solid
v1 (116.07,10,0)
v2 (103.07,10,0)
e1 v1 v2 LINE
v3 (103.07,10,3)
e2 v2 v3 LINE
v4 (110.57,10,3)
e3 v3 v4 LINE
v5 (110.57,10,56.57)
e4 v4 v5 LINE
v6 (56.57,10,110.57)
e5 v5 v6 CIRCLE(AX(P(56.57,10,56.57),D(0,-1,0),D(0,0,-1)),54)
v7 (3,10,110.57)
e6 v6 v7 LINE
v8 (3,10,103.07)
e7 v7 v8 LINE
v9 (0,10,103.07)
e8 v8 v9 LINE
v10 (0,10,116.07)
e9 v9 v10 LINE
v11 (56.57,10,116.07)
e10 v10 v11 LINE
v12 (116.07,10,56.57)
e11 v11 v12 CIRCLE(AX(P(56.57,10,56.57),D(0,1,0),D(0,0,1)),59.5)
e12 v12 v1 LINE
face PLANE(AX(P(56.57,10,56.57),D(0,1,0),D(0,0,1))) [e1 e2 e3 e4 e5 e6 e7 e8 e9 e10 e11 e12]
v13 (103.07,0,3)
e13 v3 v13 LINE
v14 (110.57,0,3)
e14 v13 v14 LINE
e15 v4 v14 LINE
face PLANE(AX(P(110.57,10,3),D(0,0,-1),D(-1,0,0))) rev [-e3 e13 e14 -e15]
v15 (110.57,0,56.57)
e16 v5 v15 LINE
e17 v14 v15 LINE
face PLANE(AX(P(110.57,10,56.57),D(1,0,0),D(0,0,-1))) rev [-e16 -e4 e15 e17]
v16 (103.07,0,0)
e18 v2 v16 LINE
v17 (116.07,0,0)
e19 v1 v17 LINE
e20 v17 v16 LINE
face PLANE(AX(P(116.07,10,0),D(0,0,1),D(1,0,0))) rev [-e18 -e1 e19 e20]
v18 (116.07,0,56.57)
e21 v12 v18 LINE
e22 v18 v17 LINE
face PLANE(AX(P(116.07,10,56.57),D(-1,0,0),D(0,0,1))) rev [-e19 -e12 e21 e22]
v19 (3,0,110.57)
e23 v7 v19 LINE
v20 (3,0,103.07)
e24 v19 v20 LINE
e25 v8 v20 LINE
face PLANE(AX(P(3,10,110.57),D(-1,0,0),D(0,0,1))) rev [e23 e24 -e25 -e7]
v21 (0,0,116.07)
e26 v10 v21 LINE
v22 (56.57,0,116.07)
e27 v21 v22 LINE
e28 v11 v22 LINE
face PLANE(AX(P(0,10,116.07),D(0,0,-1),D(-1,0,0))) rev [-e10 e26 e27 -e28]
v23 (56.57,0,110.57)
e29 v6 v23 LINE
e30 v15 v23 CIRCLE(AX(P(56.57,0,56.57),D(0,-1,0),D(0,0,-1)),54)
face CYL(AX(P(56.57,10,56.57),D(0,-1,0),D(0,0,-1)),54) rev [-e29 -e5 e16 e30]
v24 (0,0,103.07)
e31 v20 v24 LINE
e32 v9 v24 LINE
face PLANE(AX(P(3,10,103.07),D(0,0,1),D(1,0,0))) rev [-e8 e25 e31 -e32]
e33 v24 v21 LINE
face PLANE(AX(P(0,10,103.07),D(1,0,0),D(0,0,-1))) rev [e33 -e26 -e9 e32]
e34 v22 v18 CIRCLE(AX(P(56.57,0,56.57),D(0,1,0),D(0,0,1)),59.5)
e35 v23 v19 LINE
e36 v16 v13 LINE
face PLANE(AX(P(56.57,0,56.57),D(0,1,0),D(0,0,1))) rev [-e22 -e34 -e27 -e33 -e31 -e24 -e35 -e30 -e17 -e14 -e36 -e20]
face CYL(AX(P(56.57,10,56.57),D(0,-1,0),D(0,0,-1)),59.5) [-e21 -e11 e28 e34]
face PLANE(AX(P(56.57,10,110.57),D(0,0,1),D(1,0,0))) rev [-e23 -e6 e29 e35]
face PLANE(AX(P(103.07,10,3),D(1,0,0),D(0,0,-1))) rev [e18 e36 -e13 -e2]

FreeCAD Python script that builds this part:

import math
import FreeCAD as App
import Part
import Sketcher
from FreeCAD import Vector

doc = App.newDocument("Part")
body = doc.addObject("PartDesign::Body", "Body")

sketch1 = body.newObject("Sketcher::SketchObject", "Sketch")
sketch1.AttachmentSupport = (doc.getObject("XZ_Plane"), [""])
sketch1.MapMode = "FlatFace"
sketch1.addGeometry([
    Part.LineSegment(Vector(0, 116.07, 0), Vector(56.57, 116.07, 0)),
    Part.ArcOfCircle(Part.Circle(Vector(56.57, 56.57, 0), Vector(0, 0, 1), 59.5), math.radians(0), math.radians(90)),
    Part.LineSegment(Vector(116.07, 56.57, 0), Vector(116.07, 0, 0)),
    Part.LineSegment(Vector(116.07, 0, 0), Vector(103.07, 0, 0)),
    Part.LineSegment(Vector(103.07, 0, 0), Vector(103.07, 3, 0)),
    Part.LineSegment(Vector(103.07, 3, 0), Vector(110.57, 3, 0)),
    Part.LineSegment(Vector(110.57, 3, 0), Vector(110.57, 56.57, 0)),
    Part.ArcOfCircle(Part.Circle(Vector(56.57, 56.57, 0), Vector(0, 0, 1), 54), math.radians(0), math.radians(90)),
    Part.LineSegment(Vector(56.57, 110.57, 0), Vector(3, 110.57, 0)),
    Part.LineSegment(Vector(3, 110.57, 0), Vector(3, 103.07, 0)),
    Part.LineSegment(Vector(3, 103.07, 0), Vector(0, 103.07, 0)),
    Part.LineSegment(Vector(0, 103.07, 0), Vector(0, 116.07, 0)),
], False)
sketch1.addConstraint([
    Sketcher.Constraint("Tangent", 0, 2, 1, 2),
    Sketcher.Constraint("Tangent", 1, 1, 2, 1),
    Sketcher.Constraint("Coincident", 2, 2, 3, 1),
    Sketcher.Constraint("Coincident", 3, 2, 4, 1),
    Sketcher.Constraint("Coincident", 4, 2, 5, 1),
    Sketcher.Constraint("Coincident", 5, 2, 6, 1),
    Sketcher.Constraint("Tangent", 6, 2, 7, 1),
    Sketcher.Constraint("Tangent", 7, 2, 8, 1),
    Sketcher.Constraint("Coincident", 8, 2, 9, 1),
    Sketcher.Constraint("Coincident", 9, 2, 10, 1),
    Sketcher.Constraint("Coincident", 10, 2, 11, 1),
    Sketcher.Constraint("Coincident", 11, 2, 0, 1),
    Sketcher.Constraint("Horizontal", 0),
    Sketcher.Constraint("Vertical", 2),
    Sketcher.Constraint("Horizontal", 3),
    Sketcher.Constraint("Vertical", 4),
    Sketcher.Constraint("Horizontal", 5),
    Sketcher.Constraint("Vertical", 6),
    Sketcher.Constraint("Horizontal", 8),
    Sketcher.Constraint("Vertical", 9),
    Sketcher.Constraint("Horizontal", 10),
    Sketcher.Constraint("Vertical", 11),
    Sketcher.Constraint("Coincident", 7, 3, 1, 3),
    Sketcher.Constraint("PointOnObject", 2, 2, -1),
    Sketcher.Constraint("PointOnObject", 10, 2, -2),
    Sketcher.Constraint("Equal", 0, 2),
    Sketcher.Constraint("Equal", 10, 4),
    Sketcher.Constraint("Equal", 5, 9),
    Sketcher.Constraint("Radius", 7, 54.0),
    Sketcher.Constraint("Radius", 1, 59.5),
    Sketcher.Constraint("DistanceX", 3, 2, 3, 1, 13.0),
    Sketcher.Constraint("DistanceX", 10, 2, 10, 1, 3.0),
    Sketcher.Constraint("DistanceX", 0, 1, 0, 2, 56.57),
])
pad1 = body.newObject("PartDesign::Pad", "Pad")
pad1.Profile = sketch1
pad1.Length = 10
pad1.Reversed = True

doc.recompute()
